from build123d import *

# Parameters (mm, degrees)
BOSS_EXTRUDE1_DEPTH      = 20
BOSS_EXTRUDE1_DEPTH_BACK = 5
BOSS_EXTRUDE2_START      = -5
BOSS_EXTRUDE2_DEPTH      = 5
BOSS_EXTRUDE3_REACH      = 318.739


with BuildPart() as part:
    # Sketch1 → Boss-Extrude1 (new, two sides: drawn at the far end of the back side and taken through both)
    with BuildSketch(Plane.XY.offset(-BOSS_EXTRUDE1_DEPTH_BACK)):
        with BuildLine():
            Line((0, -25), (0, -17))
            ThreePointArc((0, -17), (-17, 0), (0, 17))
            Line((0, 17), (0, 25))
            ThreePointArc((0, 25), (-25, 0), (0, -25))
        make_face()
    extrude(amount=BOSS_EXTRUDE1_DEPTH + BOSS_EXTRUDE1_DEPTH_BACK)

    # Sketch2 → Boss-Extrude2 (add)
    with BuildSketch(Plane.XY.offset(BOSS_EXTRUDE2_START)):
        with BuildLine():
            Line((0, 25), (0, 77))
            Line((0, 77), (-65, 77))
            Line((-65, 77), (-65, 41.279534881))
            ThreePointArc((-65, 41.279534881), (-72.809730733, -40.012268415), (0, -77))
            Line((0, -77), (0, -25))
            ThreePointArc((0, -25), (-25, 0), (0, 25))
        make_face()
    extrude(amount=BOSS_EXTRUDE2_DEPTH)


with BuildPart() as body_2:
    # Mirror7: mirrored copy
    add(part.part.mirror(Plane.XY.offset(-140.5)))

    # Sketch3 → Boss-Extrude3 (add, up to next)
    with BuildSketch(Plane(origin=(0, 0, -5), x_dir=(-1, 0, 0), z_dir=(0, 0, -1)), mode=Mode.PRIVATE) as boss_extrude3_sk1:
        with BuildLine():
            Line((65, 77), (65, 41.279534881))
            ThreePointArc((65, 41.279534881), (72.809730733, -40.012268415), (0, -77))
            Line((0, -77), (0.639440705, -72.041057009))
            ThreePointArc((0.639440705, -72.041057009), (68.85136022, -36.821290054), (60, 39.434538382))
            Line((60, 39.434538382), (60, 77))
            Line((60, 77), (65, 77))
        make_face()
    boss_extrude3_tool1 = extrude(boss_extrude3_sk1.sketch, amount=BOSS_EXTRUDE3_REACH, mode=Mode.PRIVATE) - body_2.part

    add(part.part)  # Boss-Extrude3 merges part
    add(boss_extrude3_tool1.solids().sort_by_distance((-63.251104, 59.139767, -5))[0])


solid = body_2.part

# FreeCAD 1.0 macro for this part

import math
import FreeCAD as App
import Part
import Sketcher
from FreeCAD import Vector

doc = App.newDocument("Part")
body = doc.addObject("PartDesign::Body", "Body")

# Sketch on XY plane
sketch1 = doc.addObject("Sketcher::SketchObject", "Sketch")
body.addObject(sketch1)
sketch1.AttachmentSupport = (doc.XY_Plane, [""])
sketch1.MapMode = "FlatFace"
sketch1.addGeometry(Part.LineSegment(Vector(0, -25, 0), Vector(0, -17, 0)), False)
sketch1.addGeometry(Part.ArcOfCircle(Part.Circle(Vector(0, 0, 0), Vector(0, 0, 1), 17), math.radians(90), math.radians(270)), False)
sketch1.addGeometry(Part.LineSegment(Vector(0, 17, 0), Vector(0, 25, 0)), False)
sketch1.addGeometry(Part.ArcOfCircle(Part.Circle(Vector(0, 0, 0), Vector(0, 0, 1), 25), math.radians(90), math.radians(270)), False)
sketch1.addConstraint(Sketcher.Constraint("Coincident", 0, 2, 1, 2))
sketch1.addConstraint(Sketcher.Constraint("Coincident", 1, 1, 2, 1))
sketch1.addConstraint(Sketcher.Constraint("Coincident", 2, 2, 3, 1))
sketch1.addConstraint(Sketcher.Constraint("Coincident", 3, 2, 0, 1))
sketch1.addConstraint(Sketcher.Constraint("Vertical", 0))
sketch1.addConstraint(Sketcher.Constraint("Vertical", 2))
sketch1.addConstraint(Sketcher.Constraint("Coincident", 1, 3, -1, 1))
sketch1.addConstraint(Sketcher.Constraint("Coincident", 3, 3, -1, 1))
sketch1.addConstraint(Sketcher.Constraint("PointOnObject", 0, 2, -2))
sketch1.addConstraint(Sketcher.Constraint("PointOnObject", 1, 1, -2))
sketch1.addConstraint(Sketcher.Constraint("Radius", 1, 17.0))
sketch1.addConstraint(Sketcher.Constraint("Radius", 3, 25.0))
pad1 = doc.addObject("PartDesign::Pad", "Pad")
body.addObject(pad1)
pad1.Profile = sketch1
pad1.Type = "TwoLengths"
pad1.Length = 20
pad1.Length2 = 5

# Sketch on XY plane
sketch2 = doc.addObject("Sketcher::SketchObject", "Sketch001")
body.addObject(sketch2)
sketch2.AttachmentSupport = (doc.XY_Plane, [""])
sketch2.MapMode = "FlatFace"
sketch2.AttachmentOffset = App.Placement(Vector(0, 0, -5), App.Rotation())
sketch2.addGeometry(Part.LineSegment(Vector(0, 25, 0), Vector(0, 77, 0)), False)
sketch2.addGeometry(Part.LineSegment(Vector(0, 77, 0), Vector(-65, 77, 0)), False)
sketch2.addGeometry(Part.LineSegment(Vector(-65, 77, 0), Vector(-65, 41.279535, 0)), False)
sketch2.addGeometry(Part.ArcOfCircle(Part.Circle(Vector(-9.27189, -5.095327, 0), Vector(0, 0, 1), 72.5), math.radians(140.234031), math.radians(277.347573)), False)
sketch2.addGeometry(Part.LineSegment(Vector(0, -77, 0), Vector(0, -25, 0)), False)
sketch2.addGeometry(Part.ArcOfCircle(Part.Circle(Vector(0, 0, 0), Vector(0, 0, 1), 25), math.radians(90), math.radians(270)), False)
sketch2.addConstraint(Sketcher.Constraint("Coincident", 0, 2, 1, 1))
sketch2.addConstraint(Sketcher.Constraint("Coincident", 1, 2, 2, 1))
sketch2.addConstraint(Sketcher.Constraint("Coincident", 2, 2, 3, 1))
sketch2.addConstraint(Sketcher.Constraint("Coincident", 3, 2, 4, 1))
sketch2.addConstraint(Sketcher.Constraint("Coincident", 4, 2, 5, 2))
sketch2.addConstraint(Sketcher.Constraint("Coincident", 5, 1, 0, 1))
sketch2.addConstraint(Sketcher.Constraint("Vertical", 0))
sketch2.addConstraint(Sketcher.Constraint("Horizontal", 1))
sketch2.addConstraint(Sketcher.Constraint("Vertical", 2))
sketch2.addConstraint(Sketcher.Constraint("Vertical", 4))
sketch2.addConstraint(Sketcher.Constraint("Coincident", 5, 3, -1, 1))
sketch2.addConstraint(Sketcher.Constraint("Symmetric", 0, 2, 3, 2, -1, 1))
sketch2.addConstraint(Sketcher.Constraint("PointOnObject", 0, 2, -2))
sketch2.addConstraint(Sketcher.Constraint("Radius", 5, 25.0))
sketch2.addConstraint(Sketcher.Constraint("Radius", 3, 72.5))
sketch2.addConstraint(Sketcher.Constraint("DistanceX", 1, 2, 1, 1, 65.0))
sketch2.addConstraint(Sketcher.Constraint("DistanceY", 0, 1, 0, 2, 52.0))
sketch2.addConstraint(Sketcher.Constraint("DistanceY", 2, 2, 2, 1, 35.720465))
pad2 = doc.addObject("PartDesign::Pad", "Pad001")
body.addObject(pad2)
pad2.Profile = sketch2
pad2.Length = 5
body2 = doc.addObject("PartDesign::Body", "Body001")
body2.AllowCompound = True
doc.recompute()

mirroring = doc.addObject("Part::Mirroring", "Mirroring")
mirroring.Source = body
mirroring.Base = Vector(0, 0, -140.5)
mirroring.Normal = Vector(0, 0, 1)
body2.BaseFeature = mirroring
doc.recompute()

boolean = doc.addObject("PartDesign::Boolean", "Boolean")
body2.addObject(boolean)
boolean.Type = "Fuse"
boolean.addObjects([body])

# Sketch on XY plane
sketch3 = doc.addObject("Sketcher::SketchObject", "Sketch002")
body2.addObject(sketch3)
sketch3.AttachmentSupport = (doc.getObject("XY_Plane001"), [""])
sketch3.MapMode = "FlatFace"
sketch3.AttachmentOffset = App.Placement(Vector(0, 0, -5), App.Rotation())
sketch3.addGeometry(Part.LineSegment(Vector(-65, 41.279535, 0), Vector(-65, 77, 0)), False)
sketch3.addGeometry(Part.LineSegment(Vector(-65, 77, 0), Vector(-60, 77, 0)), False)
sketch3.addGeometry(Part.LineSegment(Vector(-60, 77, 0), Vector(-60, 39.434538, 0)), False)
sketch3.addGeometry(Part.ArcOfCircle(Part.Circle(Vector(-9.27189, -5.095327, 0), Vector(0, 0, 1), 67.5), math.radians(138.722873), math.radians(277.347573)), False)
sketch3.addGeometry(Part.LineSegment(Vector(-0.639441, -72.041057, 0), Vector(0, -77, 0)), False)
sketch3.addGeometry(Part.ArcOfCircle(Part.Circle(Vector(-9.27189, -5.095327, 0), Vector(0, 0, 1), 72.5), math.radians(140.234031), math.radians(277.347573)), False)
sketch3.addConstraint(Sketcher.Constraint("Coincident", 0, 2, 1, 1))
sketch3.addConstraint(Sketcher.Constraint("Coincident", 1, 2, 2, 1))
sketch3.addConstraint(Sketcher.Constraint("Coincident", 2, 2, 3, 1))
sketch3.addConstraint(Sketcher.Constraint("Coincident", 3, 2, 4, 1))
sketch3.addConstraint(Sketcher.Constraint("Coincident", 4, 2, 5, 2))
sketch3.addConstraint(Sketcher.Constraint("Coincident", 5, 1, 0, 1))
sketch3.addConstraint(Sketcher.Constraint("Vertical", 0))
sketch3.addConstraint(Sketcher.Constraint("Horizontal", 1))
sketch3.addConstraint(Sketcher.Constraint("Vertical", 2))
sketch3.addConstraint(Sketcher.Constraint("Coincident", 5, 3, 3, 3))
sketch3.addConstraint(Sketcher.Constraint("PointOnObject", 4, 2, -2))
sketch3.addConstraint(Sketcher.Constraint("Radius", 3, 67.5))
sketch3.addConstraint(Sketcher.Constraint("Radius", 5, 72.5))
sketch3.addConstraint(Sketcher.Constraint("DistanceX", 1, 1, 1, 2, 5.0))
sketch3.addConstraint(Sketcher.Constraint("DistanceX", 0, 2, -1, 1, 65.0))
sketch3.addConstraint(Sketcher.Constraint("DistanceY", -1, 1, 0, 2, 77.0))
sketch3.addConstraint(Sketcher.Constraint("DistanceY", 4, 2, -1, 1, 77.0))
sketch3.addConstraint(Sketcher.Constraint("DistanceY", 2, 2, 2, 1, 37.565462))
sketch3.addConstraint(Sketcher.Constraint("DistanceX", 3, 2, -1, 1, 0.639441))
pad3 = doc.addObject("PartDesign::Pad", "Pad002")
body2.addObject(pad3)
pad3.Profile = sketch3
pad3.Type = "UpToFirst"
pad3.Reversed = True
mirroring.Visibility = False

doc.recompute()
